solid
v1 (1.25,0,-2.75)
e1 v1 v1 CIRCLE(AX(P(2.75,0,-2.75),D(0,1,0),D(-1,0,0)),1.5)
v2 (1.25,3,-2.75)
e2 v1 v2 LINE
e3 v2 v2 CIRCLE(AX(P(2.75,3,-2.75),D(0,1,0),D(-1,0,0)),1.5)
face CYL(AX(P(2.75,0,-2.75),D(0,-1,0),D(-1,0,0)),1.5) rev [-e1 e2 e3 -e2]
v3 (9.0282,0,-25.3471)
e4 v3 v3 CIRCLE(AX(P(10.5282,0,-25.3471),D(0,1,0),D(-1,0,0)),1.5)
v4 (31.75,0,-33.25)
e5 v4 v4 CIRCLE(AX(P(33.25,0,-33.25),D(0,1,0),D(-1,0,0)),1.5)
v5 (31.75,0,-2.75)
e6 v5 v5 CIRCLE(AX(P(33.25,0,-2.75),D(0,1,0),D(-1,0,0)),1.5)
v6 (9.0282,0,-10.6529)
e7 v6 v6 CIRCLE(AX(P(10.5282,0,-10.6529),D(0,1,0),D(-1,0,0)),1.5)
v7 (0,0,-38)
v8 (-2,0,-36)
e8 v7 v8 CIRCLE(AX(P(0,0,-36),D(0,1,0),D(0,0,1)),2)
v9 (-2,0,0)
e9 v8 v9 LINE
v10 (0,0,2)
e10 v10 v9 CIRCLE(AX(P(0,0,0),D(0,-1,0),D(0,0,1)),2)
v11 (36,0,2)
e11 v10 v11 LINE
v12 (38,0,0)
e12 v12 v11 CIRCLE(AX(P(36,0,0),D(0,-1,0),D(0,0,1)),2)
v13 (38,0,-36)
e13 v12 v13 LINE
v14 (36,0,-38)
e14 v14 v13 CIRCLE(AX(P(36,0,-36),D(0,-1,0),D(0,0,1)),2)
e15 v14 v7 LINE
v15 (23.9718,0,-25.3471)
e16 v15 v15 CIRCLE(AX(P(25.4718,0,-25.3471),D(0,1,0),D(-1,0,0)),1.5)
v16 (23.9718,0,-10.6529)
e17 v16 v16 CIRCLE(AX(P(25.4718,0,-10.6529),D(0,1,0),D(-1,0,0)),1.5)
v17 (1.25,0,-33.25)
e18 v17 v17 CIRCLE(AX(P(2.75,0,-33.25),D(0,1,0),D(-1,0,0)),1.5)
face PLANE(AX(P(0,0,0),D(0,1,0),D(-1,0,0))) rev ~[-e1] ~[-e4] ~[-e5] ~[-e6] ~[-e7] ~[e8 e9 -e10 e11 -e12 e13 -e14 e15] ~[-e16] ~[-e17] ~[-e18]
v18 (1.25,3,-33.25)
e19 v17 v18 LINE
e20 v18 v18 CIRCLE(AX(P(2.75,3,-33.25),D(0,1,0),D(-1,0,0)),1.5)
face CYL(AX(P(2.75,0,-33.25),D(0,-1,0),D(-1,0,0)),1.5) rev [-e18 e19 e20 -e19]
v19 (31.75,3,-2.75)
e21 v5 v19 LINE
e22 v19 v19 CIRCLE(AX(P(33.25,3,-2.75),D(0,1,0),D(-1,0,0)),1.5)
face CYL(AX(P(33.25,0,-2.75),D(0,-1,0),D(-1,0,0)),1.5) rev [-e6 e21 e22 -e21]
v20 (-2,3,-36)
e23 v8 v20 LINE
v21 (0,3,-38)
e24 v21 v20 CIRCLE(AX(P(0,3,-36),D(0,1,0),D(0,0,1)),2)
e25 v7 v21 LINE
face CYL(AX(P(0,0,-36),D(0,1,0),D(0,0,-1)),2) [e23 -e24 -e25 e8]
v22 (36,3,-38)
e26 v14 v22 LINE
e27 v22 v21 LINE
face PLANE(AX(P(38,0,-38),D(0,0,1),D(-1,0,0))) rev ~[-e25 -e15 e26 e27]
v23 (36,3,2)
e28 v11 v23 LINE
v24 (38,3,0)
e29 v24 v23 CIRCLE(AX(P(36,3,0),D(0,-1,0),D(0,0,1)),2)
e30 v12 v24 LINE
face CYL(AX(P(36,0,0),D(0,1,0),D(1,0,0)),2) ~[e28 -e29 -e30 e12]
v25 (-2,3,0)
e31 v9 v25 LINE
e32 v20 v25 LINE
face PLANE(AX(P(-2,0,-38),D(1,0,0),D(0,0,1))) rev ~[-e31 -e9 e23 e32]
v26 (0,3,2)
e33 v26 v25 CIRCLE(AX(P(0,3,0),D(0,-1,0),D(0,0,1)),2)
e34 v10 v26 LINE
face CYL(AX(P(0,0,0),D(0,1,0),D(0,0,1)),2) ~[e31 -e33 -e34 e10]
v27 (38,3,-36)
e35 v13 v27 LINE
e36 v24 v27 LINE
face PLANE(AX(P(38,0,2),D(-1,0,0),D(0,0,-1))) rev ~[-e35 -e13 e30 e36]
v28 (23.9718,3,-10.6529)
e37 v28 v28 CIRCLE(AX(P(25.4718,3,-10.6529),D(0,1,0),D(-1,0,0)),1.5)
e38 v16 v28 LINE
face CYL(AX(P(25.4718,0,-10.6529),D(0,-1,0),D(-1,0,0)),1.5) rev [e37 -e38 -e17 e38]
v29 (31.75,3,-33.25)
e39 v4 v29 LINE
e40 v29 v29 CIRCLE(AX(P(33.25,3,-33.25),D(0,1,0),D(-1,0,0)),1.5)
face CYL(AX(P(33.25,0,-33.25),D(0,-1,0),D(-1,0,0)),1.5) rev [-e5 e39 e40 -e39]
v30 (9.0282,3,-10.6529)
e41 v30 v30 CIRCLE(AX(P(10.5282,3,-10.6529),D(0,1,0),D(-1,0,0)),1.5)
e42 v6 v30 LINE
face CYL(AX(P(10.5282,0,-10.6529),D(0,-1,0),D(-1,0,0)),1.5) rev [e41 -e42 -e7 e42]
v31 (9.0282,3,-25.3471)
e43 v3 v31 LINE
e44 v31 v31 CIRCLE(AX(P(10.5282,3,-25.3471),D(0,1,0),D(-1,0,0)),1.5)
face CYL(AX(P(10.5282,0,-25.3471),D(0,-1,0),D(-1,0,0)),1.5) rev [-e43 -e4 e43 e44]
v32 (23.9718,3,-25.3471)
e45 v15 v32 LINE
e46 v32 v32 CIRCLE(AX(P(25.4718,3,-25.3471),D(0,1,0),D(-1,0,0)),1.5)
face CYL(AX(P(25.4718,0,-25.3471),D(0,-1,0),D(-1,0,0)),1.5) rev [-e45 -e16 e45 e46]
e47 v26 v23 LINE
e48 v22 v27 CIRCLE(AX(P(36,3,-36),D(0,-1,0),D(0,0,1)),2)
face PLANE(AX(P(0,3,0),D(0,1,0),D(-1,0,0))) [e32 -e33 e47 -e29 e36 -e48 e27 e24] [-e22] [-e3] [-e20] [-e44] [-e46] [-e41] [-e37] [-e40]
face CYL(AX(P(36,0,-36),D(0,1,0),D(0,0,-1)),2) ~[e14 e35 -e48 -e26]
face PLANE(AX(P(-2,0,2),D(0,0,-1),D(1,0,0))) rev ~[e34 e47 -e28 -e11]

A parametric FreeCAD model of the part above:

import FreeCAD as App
import Part
import Sketcher

V = App.Vector
Q = App.Units.Quantity


def edges_at(feature, points):
    """Names of the edges that pass closest to the given points."""
    edges = feature.Shape.Edges
    near = lambda p: min(range(len(edges)), key=lambda i: edges[i].distToShape(Part.Vertex(*p))[0])
    return sorted({f"Edge{near(p) + 1}" for p in points})


def add_polygon(sketch, points):
    """Adds a closed chain of lines whose ends are joined by coincident constraints."""
    first, n = sketch.GeometryCount, len(points)
    for a, b in zip(points, points[1:] + points[:1]):
        sketch.addGeometry(Part.LineSegment(App.Vector(*a, 0), App.Vector(*b, 0)), False)
    for i in range(n):
        sketch.addConstraint(Sketcher.Constraint("Coincident", first + i, 2, first + (i + 1) % n, 1))

doc = App.newDocument("Part")
params = doc.addObject("Spreadsheet::Sheet", "Params")
for row, (alias, value) in enumerate([
    ("sketch1_diameter", "3 mm"),
    ("sketch1_width", "40 mm"),
    ("pad1_length", "3 mm"),
    ("fillet_radius", "2 mm"),
], start=1):
    params.set(f"A{row}", alias)
    params.set(f"B{row}", "=" + value)
    params.setAlias(f"B{row}", alias)

body = doc.addObject("PartDesign::Body", "Body")

# Sketch on XZ plane
sketch1 = body.newObject("Sketcher::SketchObject", "Sketch")
sketch1.AttachmentSupport = (doc.getObject("XZ_Plane"), [""])
sketch1.MapMode = "FlatFace"
add_polygon(sketch1, [(38, -38), (-2, -38), (-2, 2), (38, 2)])  # lines 0-3
sketch1.addGeometry(Part.Circle(V(33.2, -33.2, 0), V(0, 0, 1), 1.5), False)  # 4
sketch1.addGeometry(Part.Circle(V(25.5, -25.3, 0), V(0, 0, 1), 1.5), False)  # 5
sketch1.addGeometry(Part.Circle(V(2.8, -33.2, 0), V(0, 0, 1), 1.5), False)  # 6
sketch1.addGeometry(Part.Circle(V(10.5, -25.3, 0), V(0, 0, 1), 1.5), False)  # 7
sketch1.addGeometry(Part.Circle(V(25.5, -10.7, 0), V(0, 0, 1), 1.5), False)  # 8
sketch1.addGeometry(Part.Circle(V(33.2, -2.8, 0), V(0, 0, 1), 1.5), False)  # 9
sketch1.addGeometry(Part.Circle(V(10.5, -10.7, 0), V(0, 0, 1), 1.5), False)  # 10
sketch1.addGeometry(Part.Circle(V(2.8, -2.8, 0), V(0, 0, 1), 1.5), False)  # 11
sketch1.addConstraint([
    Sketcher.Constraint("Horizontal", 0),
    Sketcher.Constraint("Vertical", 1),
    Sketcher.Constraint("Horizontal", 2),
    Sketcher.Constraint("Vertical", 3),
    Sketcher.Constraint("Equal", 4, 5),
    Sketcher.Constraint("Equal", 5, 6),
    Sketcher.Constraint("Equal", 6, 7),
    Sketcher.Constraint("Equal", 7, 8),
    Sketcher.Constraint("Equal", 8, 9),
    Sketcher.Constraint("Equal", 9, 10),
    Sketcher.Constraint("Equal", 10, 11),
    Sketcher.Constraint("Horizontal", 4, 3, 6, 3),
    Sketcher.Constraint("Horizontal", 5, 3, 7, 3),
    Sketcher.Constraint("Horizontal", 8, 3, 10, 3),
    Sketcher.Constraint("Horizontal", 9, 3, 11, 3),
    Sketcher.Constraint("Vertical", 5, 3, 8, 3),
    Sketcher.Constraint("Vertical", 4, 3, 9, 3),
    Sketcher.Constraint("Vertical", 7, 3, 10, 3),
    Sketcher.Constraint("Vertical", 6, 3, 11, 3),
    Sketcher.Constraint("Equal", 2, 1),
    Sketcher.Constraint("Diameter", 4, Q("3 mm")),
    Sketcher.Constraint("DistanceX", 0, 2, 0, 1, Q("40 mm")),
    Sketcher.Constraint("DistanceX", 0, 2, -1, 1, Q("2 mm")),
    Sketcher.Constraint("DistanceY", 0, 2, -1, 1, Q("38 mm")),
    Sketcher.Constraint("DistanceX", 6, 3, 4, 3, Q("30.5 mm")),
    Sketcher.Constraint("DistanceY", 4, 3, 9, 3, Q("30.5 mm")),
    Sketcher.Constraint("DistanceX", -1, 1, 4, 3, Q("33.25 mm")),
    Sketcher.Constraint("DistanceY", 4, 3, -1, 1, Q("33.25 mm")),
    Sketcher.Constraint("DistanceY", 5, 3, -1, 1, Q("25.347 mm")),
    Sketcher.Constraint("DistanceY", 8, 3, -1, 1, Q("10.653 mm")),
    Sketcher.Constraint("DistanceX", -1, 1, 5, 3, Q("25.4718 mm")),
    Sketcher.Constraint("DistanceX", -1, 1, 7, 3, Q("10.5282 mm")),
])
sketch1.setExpression("Constraints[24]", "Params.sketch1_diameter")
sketch1.setExpression("Constraints[25]", "Params.sketch1_width")
pad1 = body.newObject("PartDesign::Pad", "Pad")
pad1.Profile = sketch1
pad1.setExpression("Length", "Params.pad1_length")
pad1.Reversed = True
doc.recompute()

fillet = body.newObject("PartDesign::Fillet", "Fillet")
fillet.Base = (pad1, edges_at(pad1, [
    (38, 1.5, 2),
    (-2, 1.5, 2),
    (-2, 1.5, -38),
    (38, 1.5, -38),
]))
fillet.setExpression("Radius", "Params.fillet_radius")

doc.recompute()
